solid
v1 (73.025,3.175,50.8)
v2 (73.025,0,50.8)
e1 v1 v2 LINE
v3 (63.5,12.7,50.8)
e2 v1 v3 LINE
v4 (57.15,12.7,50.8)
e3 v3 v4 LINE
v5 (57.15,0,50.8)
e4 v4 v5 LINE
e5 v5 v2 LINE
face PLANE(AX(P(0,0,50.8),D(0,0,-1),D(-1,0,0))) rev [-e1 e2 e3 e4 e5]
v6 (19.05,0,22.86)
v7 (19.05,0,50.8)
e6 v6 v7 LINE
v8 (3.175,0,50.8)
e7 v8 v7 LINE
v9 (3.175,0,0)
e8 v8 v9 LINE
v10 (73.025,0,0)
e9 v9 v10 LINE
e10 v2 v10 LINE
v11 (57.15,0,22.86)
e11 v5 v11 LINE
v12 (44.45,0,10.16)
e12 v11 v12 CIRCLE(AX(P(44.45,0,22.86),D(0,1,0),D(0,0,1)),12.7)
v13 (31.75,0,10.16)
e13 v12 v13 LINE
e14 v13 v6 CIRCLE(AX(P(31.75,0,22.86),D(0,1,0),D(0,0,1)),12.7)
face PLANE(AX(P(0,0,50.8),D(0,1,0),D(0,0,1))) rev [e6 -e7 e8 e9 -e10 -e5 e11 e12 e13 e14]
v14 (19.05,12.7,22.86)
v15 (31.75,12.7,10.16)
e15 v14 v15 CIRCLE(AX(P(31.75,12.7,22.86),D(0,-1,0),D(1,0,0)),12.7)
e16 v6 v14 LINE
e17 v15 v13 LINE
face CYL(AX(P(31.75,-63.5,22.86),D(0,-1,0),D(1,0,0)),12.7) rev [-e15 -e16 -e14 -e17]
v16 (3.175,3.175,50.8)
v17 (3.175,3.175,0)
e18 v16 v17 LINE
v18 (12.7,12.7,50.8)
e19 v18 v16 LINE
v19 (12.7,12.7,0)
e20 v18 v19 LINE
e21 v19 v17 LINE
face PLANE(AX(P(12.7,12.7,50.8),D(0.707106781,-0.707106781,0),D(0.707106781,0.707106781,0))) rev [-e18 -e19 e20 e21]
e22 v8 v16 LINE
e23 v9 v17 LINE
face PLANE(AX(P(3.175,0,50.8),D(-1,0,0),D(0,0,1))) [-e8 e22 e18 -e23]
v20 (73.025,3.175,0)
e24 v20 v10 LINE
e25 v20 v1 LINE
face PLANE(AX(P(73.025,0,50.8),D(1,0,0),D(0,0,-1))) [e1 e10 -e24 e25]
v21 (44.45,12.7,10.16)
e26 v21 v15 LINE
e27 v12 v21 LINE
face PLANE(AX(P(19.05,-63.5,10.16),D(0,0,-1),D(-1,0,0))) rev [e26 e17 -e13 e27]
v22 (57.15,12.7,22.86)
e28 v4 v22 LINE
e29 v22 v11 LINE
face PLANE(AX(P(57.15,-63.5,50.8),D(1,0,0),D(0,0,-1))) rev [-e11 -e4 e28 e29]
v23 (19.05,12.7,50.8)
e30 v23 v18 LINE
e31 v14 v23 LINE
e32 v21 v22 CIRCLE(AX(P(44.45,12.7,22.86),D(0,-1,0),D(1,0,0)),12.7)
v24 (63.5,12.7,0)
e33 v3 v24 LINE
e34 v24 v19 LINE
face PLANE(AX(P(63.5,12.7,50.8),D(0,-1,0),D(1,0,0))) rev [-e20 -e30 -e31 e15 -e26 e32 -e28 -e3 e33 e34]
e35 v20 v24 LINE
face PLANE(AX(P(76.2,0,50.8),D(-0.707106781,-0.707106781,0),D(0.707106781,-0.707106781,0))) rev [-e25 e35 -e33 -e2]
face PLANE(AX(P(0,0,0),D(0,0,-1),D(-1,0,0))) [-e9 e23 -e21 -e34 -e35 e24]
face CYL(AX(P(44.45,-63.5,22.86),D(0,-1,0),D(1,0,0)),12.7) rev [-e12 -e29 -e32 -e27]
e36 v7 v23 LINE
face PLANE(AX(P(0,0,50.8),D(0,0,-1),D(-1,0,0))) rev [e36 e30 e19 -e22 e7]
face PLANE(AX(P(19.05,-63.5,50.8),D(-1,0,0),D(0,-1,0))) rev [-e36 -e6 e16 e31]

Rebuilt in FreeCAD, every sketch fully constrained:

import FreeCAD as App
import Part
import Sketcher

V = App.Vector
Q = App.Units.Quantity


def edges_at(feature, points):
    """Names of the edges that pass closest to the given points."""
    edges = feature.Shape.Edges
    near = lambda p: min(range(len(edges)), key=lambda i: edges[i].distToShape(Part.Vertex(*p))[0])
    return sorted({f"Edge{near(p) + 1}" for p in points})


def add_polygon(sketch, points):
    """Adds a closed chain of lines whose ends are joined by coincident constraints."""
    first, n = sketch.GeometryCount, len(points)
    for a, b in zip(points, points[1:] + points[:1]):
        sketch.addGeometry(Part.LineSegment(App.Vector(*a, 0), App.Vector(*b, 0)), False)
    for i in range(n):
        sketch.addConstraint(Sketcher.Constraint("Coincident", first + i, 2, first + (i + 1) % n, 1))

doc = App.newDocument("Part")
body = doc.addObject("PartDesign::Body", "Body")

# Sketch on XY plane
sketch1 = doc.addObject("Sketcher::SketchObject", "Sketch")
body.addObject(sketch1)
sketch1.AttachmentSupport = (doc.XY_Plane, [""])
sketch1.MapMode = "FlatFace"
add_polygon(sketch1, [(0, 0), (76, 0), (64, 13), (13, 13)])  # lines 0-3
sketch1.addConstraint([
    Sketcher.Constraint("Horizontal", 0),
    Sketcher.Constraint("Horizontal", 2),
    Sketcher.Constraint("Coincident", 3, 2, -1, 1),
    Sketcher.Constraint("Perpendicular", 1, 3),
    Sketcher.Constraint("Equal", 1, 3),
    Sketcher.Constraint("DistanceX", 0, 1, 0, 2, Q("3 in")),
    Sketcher.Constraint("DistanceX", 2, 2, 2, 1, Q("2 in")),
])
pad1 = doc.addObject("PartDesign::Pad", "Pad")
body.addObject(pad1)
pad1.Profile = sketch1
pad1.Length = Q("2 in")

# Sketch on XZ plane
sketch2 = doc.addObject("Sketcher::SketchObject", "Sketch001")
body.addObject(sketch2)
sketch2.AttachmentSupport = (doc.XZ_Plane, [""])
sketch2.MapMode = "FlatFace"
sketch2.AttachmentOffset = App.Placement(V(0, 0, -0.5 * 25.4), App.Rotation())
add_polygon(sketch2, [(19, 10), (19, 51), (57, 51), (57, 10)])  # lines 0-3
sketch2.addConstraint([
    Sketcher.Constraint("Vertical", 0),
    Sketcher.Constraint("Horizontal", 1),
    Sketcher.Constraint("Vertical", 2),
    Sketcher.Constraint("Horizontal", 3),
    Sketcher.Constraint("DistanceX", 1, 1, 1, 2, Q("1.5 in")),
    Sketcher.Constraint("DistanceY", 0, 1, 0, 2, Q("1.6 in")),
    Sketcher.Constraint("DistanceY", -1, 1, 0, 2, Q("2 in")),
    Sketcher.Constraint("DistanceX", -1, 1, 0, 2, Q("0.75 in")),
])
pocket1 = doc.addObject("PartDesign::Pocket", "Pocket")
body.addObject(pocket1)
pocket1.Profile = sketch2
pocket1.Length = Q("3 in")
pocket1.Reversed = True
doc.recompute()

fillet = doc.addObject("PartDesign::Fillet", "Fillet")
body.addObject(fillet)
fillet.Base = (pocket1, edges_at(pocket1, [(19.05, 6.35, 10.16), (57.15, 6.35, 10.16)]))
fillet.Radius = Q("0.5 in")

# Sketch on XY plane
sketch3 = doc.addObject("Sketcher::SketchObject", "Sketch002")
body.addObject(sketch3)
sketch3.AttachmentSupport = (doc.XY_Plane, [""])
sketch3.MapMode = "FlatFace"
add_polygon(sketch3, [(86, 23), (86, -10), (-10, -10), (-10, 23)])  # lines 0-3
add_polygon(sketch3, [(3, 0), (73, 0), (73, 13), (3, 13)])  # lines 4-7
sketch3.addConstraint([
    Sketcher.Constraint("Vertical", 0),
    Sketcher.Constraint("Horizontal", 1),
    Sketcher.Constraint("Vertical", 2),
    Sketcher.Constraint("Horizontal", 3),
    Sketcher.Constraint("Horizontal", 4),
    Sketcher.Constraint("Vertical", 5),
    Sketcher.Constraint("Horizontal", 6),
    Sketcher.Constraint("Vertical", 7),
    Sketcher.Constraint("PointOnObject", 4, 2, -1),
    Sketcher.Constraint("DistanceY", 5, 1, 5, 2, Q("0.5 in")),
    Sketcher.Constraint("DistanceX", 4, 1, 4, 2, Q("2.75 in")),
    Sketcher.Constraint("DistanceX", -1, 1, 4, 2, Q("2.875 in")),
    Sketcher.Constraint("DistanceX", 1, 2, 1, 1, Q("96.692 mm")),
    Sketcher.Constraint("DistanceY", 0, 2, 0, 1, Q("33.192 mm")),
    Sketcher.Constraint("DistanceX", -1, 1, 0, 2, Q("86.446 mm")),
    Sketcher.Constraint("DistanceY", 0, 2, -1, 1, Q("10.246 mm")),
])
pocket2 = doc.addObject("PartDesign::Pocket", "Pocket001")
body.addObject(pocket2)
pocket2.Profile = sketch3
pocket2.Type = "ThroughAll"
pocket2.Reversed = True

doc.recompute()
